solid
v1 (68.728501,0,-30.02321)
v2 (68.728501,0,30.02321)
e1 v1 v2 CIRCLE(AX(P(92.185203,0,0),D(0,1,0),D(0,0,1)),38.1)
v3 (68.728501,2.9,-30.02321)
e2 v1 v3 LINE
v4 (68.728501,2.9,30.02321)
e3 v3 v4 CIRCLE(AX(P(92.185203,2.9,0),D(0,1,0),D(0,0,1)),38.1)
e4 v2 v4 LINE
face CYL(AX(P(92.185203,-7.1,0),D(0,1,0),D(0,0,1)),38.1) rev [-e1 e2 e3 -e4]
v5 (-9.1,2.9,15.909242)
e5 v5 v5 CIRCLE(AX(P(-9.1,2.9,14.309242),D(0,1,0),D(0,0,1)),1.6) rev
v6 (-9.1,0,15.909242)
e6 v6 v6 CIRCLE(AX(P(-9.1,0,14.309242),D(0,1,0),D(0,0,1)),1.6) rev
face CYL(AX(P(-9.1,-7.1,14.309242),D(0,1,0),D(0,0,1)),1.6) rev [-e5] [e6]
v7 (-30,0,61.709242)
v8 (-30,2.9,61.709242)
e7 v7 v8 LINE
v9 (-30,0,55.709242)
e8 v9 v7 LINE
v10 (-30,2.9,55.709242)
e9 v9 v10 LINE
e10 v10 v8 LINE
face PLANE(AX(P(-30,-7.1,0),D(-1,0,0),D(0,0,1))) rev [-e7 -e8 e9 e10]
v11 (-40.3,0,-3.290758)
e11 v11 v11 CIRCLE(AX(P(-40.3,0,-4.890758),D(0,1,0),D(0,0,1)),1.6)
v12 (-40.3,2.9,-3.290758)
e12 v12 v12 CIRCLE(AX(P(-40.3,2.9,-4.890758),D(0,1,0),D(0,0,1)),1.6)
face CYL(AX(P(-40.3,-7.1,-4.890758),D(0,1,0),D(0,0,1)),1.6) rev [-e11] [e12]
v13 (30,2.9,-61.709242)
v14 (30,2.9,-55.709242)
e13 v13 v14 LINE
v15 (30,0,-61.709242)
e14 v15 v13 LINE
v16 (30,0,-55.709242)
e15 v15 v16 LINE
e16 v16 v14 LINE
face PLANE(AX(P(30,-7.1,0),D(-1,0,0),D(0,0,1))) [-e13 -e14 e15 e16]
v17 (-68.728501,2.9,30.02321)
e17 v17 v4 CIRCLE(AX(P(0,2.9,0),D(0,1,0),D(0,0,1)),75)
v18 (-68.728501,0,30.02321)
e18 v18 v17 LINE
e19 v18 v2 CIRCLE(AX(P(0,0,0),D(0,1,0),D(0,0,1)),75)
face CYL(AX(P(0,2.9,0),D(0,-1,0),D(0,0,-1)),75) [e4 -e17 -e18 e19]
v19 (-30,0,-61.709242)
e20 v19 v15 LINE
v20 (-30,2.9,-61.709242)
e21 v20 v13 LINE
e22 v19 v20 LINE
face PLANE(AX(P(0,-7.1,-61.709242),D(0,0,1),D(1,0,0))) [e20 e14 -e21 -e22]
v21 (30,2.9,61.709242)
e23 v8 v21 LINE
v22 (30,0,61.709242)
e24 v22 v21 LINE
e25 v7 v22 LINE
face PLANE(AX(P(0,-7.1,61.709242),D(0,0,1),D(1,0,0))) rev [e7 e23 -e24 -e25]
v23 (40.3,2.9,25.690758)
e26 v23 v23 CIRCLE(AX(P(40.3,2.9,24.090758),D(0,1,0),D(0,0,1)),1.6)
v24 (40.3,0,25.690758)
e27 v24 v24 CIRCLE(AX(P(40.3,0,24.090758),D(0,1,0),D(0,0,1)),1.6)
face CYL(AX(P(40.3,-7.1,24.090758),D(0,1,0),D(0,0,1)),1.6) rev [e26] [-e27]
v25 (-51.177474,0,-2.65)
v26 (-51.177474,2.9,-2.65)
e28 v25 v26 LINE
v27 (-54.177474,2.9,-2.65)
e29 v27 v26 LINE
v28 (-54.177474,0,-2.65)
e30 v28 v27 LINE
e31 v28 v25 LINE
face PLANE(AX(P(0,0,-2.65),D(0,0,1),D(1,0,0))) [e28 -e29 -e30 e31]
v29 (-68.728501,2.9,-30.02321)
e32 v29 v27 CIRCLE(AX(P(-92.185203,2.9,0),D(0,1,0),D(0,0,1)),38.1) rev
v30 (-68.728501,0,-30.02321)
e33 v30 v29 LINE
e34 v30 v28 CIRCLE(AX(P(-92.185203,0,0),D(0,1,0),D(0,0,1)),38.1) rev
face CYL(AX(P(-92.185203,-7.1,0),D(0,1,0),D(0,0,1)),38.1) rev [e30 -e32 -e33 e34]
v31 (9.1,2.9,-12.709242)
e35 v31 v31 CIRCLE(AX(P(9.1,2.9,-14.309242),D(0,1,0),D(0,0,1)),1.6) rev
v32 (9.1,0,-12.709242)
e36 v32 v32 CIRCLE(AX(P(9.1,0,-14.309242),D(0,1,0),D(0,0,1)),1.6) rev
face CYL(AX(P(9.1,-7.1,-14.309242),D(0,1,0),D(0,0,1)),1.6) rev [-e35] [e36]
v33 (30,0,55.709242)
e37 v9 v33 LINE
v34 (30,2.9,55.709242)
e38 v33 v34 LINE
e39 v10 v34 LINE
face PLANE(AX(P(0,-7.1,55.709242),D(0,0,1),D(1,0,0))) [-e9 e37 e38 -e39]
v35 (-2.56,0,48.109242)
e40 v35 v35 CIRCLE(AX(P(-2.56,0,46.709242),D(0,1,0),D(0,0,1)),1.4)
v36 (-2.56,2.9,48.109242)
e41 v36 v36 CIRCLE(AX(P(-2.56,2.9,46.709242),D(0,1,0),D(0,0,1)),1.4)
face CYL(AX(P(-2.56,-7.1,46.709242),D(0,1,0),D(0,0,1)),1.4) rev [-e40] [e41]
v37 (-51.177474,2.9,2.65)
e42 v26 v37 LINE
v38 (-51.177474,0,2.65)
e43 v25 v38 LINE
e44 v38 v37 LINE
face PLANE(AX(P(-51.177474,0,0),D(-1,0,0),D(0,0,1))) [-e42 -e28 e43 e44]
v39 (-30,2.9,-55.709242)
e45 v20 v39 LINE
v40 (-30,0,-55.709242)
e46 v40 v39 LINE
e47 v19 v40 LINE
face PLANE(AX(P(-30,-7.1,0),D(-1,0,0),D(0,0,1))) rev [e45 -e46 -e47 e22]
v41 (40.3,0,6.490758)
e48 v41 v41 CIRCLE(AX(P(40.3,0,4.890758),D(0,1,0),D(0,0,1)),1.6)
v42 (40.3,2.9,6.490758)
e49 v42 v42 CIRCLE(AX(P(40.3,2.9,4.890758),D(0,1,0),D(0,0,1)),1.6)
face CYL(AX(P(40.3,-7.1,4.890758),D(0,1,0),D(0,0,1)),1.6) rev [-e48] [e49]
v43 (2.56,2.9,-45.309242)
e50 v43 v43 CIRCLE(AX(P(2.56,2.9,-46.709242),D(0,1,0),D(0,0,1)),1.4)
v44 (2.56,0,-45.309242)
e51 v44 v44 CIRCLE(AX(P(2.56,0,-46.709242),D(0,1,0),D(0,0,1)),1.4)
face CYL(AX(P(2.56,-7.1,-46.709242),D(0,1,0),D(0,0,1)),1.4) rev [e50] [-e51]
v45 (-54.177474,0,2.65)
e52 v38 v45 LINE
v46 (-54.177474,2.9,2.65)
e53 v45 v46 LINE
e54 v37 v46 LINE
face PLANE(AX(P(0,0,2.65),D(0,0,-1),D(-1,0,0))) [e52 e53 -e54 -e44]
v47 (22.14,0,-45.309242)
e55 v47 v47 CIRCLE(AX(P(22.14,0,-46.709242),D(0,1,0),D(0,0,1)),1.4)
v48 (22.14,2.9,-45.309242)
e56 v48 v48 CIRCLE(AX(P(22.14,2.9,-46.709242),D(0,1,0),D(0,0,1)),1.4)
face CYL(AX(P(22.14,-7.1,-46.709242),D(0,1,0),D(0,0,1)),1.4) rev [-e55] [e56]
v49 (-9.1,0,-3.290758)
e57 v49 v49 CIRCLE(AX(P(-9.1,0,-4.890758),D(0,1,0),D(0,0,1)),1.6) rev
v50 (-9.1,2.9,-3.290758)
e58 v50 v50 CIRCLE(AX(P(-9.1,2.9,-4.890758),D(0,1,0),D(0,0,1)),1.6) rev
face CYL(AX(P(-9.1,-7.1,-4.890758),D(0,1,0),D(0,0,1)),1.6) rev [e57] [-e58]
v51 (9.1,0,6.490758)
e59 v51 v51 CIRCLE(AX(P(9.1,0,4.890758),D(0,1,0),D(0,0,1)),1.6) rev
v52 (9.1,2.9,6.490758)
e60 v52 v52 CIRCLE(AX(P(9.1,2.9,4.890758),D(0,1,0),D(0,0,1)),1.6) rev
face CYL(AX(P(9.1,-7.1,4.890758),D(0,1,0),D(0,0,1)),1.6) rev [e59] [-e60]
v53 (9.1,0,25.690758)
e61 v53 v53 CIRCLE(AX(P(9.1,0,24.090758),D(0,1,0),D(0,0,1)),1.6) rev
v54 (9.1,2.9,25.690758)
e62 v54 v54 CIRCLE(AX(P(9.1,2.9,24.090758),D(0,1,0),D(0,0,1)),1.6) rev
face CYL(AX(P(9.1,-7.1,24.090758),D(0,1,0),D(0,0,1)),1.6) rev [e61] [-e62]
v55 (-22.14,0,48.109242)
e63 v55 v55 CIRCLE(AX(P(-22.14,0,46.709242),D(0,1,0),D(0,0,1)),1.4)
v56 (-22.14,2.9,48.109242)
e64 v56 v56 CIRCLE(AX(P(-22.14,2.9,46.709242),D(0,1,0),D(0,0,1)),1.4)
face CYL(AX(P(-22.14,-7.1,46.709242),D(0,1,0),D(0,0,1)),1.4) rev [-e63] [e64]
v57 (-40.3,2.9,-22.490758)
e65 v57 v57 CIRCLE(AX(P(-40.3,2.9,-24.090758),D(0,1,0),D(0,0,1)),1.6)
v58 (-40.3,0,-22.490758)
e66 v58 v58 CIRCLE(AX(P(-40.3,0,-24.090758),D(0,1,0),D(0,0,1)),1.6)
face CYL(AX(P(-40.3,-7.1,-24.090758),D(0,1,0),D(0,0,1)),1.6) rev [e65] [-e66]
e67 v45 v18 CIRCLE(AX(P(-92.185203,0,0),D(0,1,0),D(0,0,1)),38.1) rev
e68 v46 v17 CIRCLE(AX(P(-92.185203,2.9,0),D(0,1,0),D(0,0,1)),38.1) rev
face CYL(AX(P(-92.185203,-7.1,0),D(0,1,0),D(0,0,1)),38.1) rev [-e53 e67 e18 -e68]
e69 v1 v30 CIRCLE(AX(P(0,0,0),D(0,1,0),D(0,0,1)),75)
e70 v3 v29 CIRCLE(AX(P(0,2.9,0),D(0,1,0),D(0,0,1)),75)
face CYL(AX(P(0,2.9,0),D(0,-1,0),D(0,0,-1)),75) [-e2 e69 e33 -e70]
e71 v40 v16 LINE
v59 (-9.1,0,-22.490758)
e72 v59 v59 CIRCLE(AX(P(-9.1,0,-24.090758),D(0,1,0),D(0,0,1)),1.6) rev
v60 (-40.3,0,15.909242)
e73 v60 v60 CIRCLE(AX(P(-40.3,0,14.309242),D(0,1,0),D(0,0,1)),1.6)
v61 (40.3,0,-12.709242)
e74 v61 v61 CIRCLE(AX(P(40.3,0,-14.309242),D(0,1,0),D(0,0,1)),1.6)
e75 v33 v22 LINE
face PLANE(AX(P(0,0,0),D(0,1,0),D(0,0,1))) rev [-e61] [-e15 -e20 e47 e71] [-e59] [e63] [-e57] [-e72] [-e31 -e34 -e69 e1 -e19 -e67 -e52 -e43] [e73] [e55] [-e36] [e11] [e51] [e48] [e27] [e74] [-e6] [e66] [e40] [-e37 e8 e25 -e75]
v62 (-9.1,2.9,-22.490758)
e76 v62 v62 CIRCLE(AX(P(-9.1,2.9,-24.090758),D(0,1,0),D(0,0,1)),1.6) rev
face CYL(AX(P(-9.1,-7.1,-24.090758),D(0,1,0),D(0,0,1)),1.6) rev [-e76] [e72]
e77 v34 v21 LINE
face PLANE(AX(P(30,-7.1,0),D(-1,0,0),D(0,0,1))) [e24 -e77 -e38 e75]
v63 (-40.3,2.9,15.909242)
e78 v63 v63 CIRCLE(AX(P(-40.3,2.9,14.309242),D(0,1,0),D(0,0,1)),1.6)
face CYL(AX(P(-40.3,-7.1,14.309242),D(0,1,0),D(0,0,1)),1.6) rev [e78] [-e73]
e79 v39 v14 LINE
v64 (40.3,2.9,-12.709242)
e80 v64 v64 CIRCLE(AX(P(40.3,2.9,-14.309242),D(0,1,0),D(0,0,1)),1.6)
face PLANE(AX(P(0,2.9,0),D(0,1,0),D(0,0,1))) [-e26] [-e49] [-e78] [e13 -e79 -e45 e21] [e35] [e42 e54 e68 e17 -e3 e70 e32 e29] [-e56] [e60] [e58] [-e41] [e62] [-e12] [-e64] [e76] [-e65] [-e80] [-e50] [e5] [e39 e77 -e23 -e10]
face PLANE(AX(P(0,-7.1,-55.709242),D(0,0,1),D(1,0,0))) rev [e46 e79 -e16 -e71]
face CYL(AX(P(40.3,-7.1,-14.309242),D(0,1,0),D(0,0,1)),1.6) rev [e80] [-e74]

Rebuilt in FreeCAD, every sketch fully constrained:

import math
import FreeCAD as App
import Part
import Sketcher


def add_polygon(sketch, points):
    """Adds a closed chain of lines whose ends are joined by coincident constraints."""
    first, n = sketch.GeometryCount, len(points)
    for a, b in zip(points, points[1:] + points[:1]):
        sketch.addGeometry(Part.LineSegment(App.Vector(*a, 0), App.Vector(*b, 0)), False)
    for i in range(n):
        sketch.addConstraint(Sketcher.Constraint("Coincident", first + i, 2, first + (i + 1) % n, 1))

doc = App.newDocument("Part")
body = doc.addObject("PartDesign::Body", "Body")

# Sketch on XZ plane
sketch1 = body.newObject("Sketcher::SketchObject", "Sketch")
sketch1.AttachmentSupport = (doc.getObject("XZ_Plane"), [""])
sketch1.MapMode = "FlatFace"
sketch1.addGeometry(Part.Circle(App.Vector(0, 0, 0), App.Vector(0, 0, 1), 75), False)
sketch1.addConstraint([
    Sketcher.Constraint("Coincident", 0, 3, -1, 1),
    Sketcher.Constraint("Diameter", 0, 150.0),
])
pad1 = body.newObject("PartDesign::Pad", "Pad")
pad1.Profile = sketch1
pad1.Length = 2.9
pad1.Reversed = True

# Sketch on XZ plane
sketch2 = body.newObject("Sketcher::SketchObject", "Sketch001")
sketch2.AttachmentSupport = (doc.getObject("XZ_Plane"), [""])
sketch2.MapMode = "FlatFace"
sketch2.AttachmentOffset = App.Placement(App.Vector(0, 0, -2.9), App.Rotation())
sketch2.addGeometry(Part.ArcOfCircle(Part.Circle(App.Vector(-92.2, 0, 0), App.Vector(0, 0, 1), 38.1), math.radians(-52), math.radians(52)), False)  # 0
sketch2.addGeometry(Part.ArcOfCircle(Part.Circle(App.Vector(0, 0, 0), App.Vector(0, 0, 1), 75), math.radians(156), math.radians(204)), False)  # 1
sketch2.addGeometry(Part.ArcOfCircle(Part.Circle(App.Vector(0, 0, 0), App.Vector(0, 0, 1), 75), math.radians(-24), math.radians(0)), False)  # 2
sketch2.addGeometry(Part.ArcOfCircle(Part.Circle(App.Vector(92.2, 0, 0), App.Vector(0, 0, 1), 38.1), math.radians(128), math.radians(232)), False)  # 3
sketch2.addGeometry(Part.ArcOfCircle(Part.Circle(App.Vector(0, 0, 0), App.Vector(0, 0, 1), 75), math.radians(0), math.radians(24)), False)  # 4
sketch2.addGeometry(Part.Circle(App.Vector(9.1, 24.1, 0), App.Vector(0, 0, 1), 1.6), False)  # 5
sketch2.addGeometry(Part.Circle(App.Vector(40.3, 24.1, 0), App.Vector(0, 0, 1), 1.6), False)  # 6
sketch2.addGeometry(Part.Circle(App.Vector(40.3, 4.9, 0), App.Vector(0, 0, 1), 1.6), False)  # 7
sketch2.addGeometry(Part.Circle(App.Vector(40.3, -14.3, 0), App.Vector(0, 0, 1), 1.6), False)  # 8
sketch2.addGeometry(Part.Circle(App.Vector(9.1, -14.3, 0), App.Vector(0, 0, 1), 1.6), False)  # 9
sketch2.addGeometry(Part.Circle(App.Vector(9.1, 4.9, 0), App.Vector(0, 0, 1), 1.6), False)  # 10
sketch2.addGeometry(Part.Circle(App.Vector(-9.1, -4.9, 0), App.Vector(0, 0, 1), 1.6), False)  # 11
sketch2.addGeometry(Part.Circle(App.Vector(-9.1, 14.3, 0), App.Vector(0, 0, 1), 1.6), False)  # 12
sketch2.addGeometry(Part.Circle(App.Vector(-9.1, -24.1, 0), App.Vector(0, 0, 1), 1.6), False)  # 13
sketch2.addGeometry(Part.Circle(App.Vector(-40.3, -24.1, 0), App.Vector(0, 0, 1), 1.6), False)  # 14
sketch2.addGeometry(Part.Circle(App.Vector(-40.3, -4.9, 0), App.Vector(0, 0, 1), 1.6), False)  # 15
sketch2.addGeometry(Part.Circle(App.Vector(-40.3, 14.3, 0), App.Vector(0, 0, 1), 1.6), False)  # 16
sketch2.addGeometry(Part.Circle(App.Vector(-22.1, 46.7, 0), App.Vector(0, 0, 1), 1.4), False)  # 17
sketch2.addGeometry(Part.Circle(App.Vector(-2.6, 46.7, 0), App.Vector(0, 0, 1), 1.4), False)  # 18
sketch2.addGeometry(Part.Circle(App.Vector(22.1, -46.7, 0), App.Vector(0, 0, 1), 1.4), False)  # 19
sketch2.addGeometry(Part.Circle(App.Vector(2.6, -46.7, 0), App.Vector(0, 0, 1), 1.4), False)  # 20
add_polygon(sketch2, [(-30, 55.7), (-30, 61.7), (30, 61.7), (30, 55.7)])  # lines 21-24
add_polygon(sketch2, [(-30, -61.7), (-30, -55.7), (30, -55.7), (30, -61.7)])  # lines 25-28
sketch2.addConstraint([
    Sketcher.Constraint("Coincident", 0, 1, 1, 2),
    Sketcher.Constraint("Coincident", 1, 1, 0, 2),
    Sketcher.Constraint("Coincident", 2, 1, 3, 2),
    Sketcher.Constraint("Coincident", 3, 1, 4, 2),
    Sketcher.Constraint("Tangent", 4, 1, 2, 2),
    Sketcher.Constraint("Vertical", 21),
    Sketcher.Constraint("Horizontal", 22),
    Sketcher.Constraint("Vertical", 23),
    Sketcher.Constraint("Horizontal", 24),
    Sketcher.Constraint("Vertical", 25),
    Sketcher.Constraint("Horizontal", 26),
    Sketcher.Constraint("Vertical", 27),
    Sketcher.Constraint("Horizontal", 28),
    Sketcher.Constraint("Coincident", 1, 3, -1, 1),
    Sketcher.Constraint("Coincident", 2, 3, -1, 1),
    Sketcher.Constraint("Equal", 1, 2),
    Sketcher.Constraint("Equal", 0, 3),
    Sketcher.Constraint("Equal", 2, 4),
    Sketcher.Constraint("Equal", 5, 6),
    Sketcher.Constraint("Equal", 6, 7),
    Sketcher.Constraint("Equal", 7, 8),
    Sketcher.Constraint("Equal", 8, 9),
    Sketcher.Constraint("Equal", 9, 10),
    Sketcher.Constraint("Equal", 10, 11),
    Sketcher.Constraint("Equal", 11, 12),
    Sketcher.Constraint("Equal", 12, 13),
    Sketcher.Constraint("Equal", 13, 14),
    Sketcher.Constraint("Equal", 14, 15),
    Sketcher.Constraint("Equal", 15, 16),
    Sketcher.Constraint("Equal", 17, 18),
    Sketcher.Constraint("Equal", 18, 19),
    Sketcher.Constraint("Equal", 19, 20),
    Sketcher.Constraint("Symmetric", 0, 3, 3, 3, -1, 1),
    Sketcher.Constraint("Symmetric", 10, 3, 11, 3, -1, 1),
    Sketcher.Constraint("Symmetric", 9, 3, 12, 3, -1, 1),
    Sketcher.Constraint("Symmetric", 5, 3, 13, 3, -1, 1),
    Sketcher.Constraint("Symmetric", 6, 3, 14, 3, -1, 1),
    Sketcher.Constraint("Symmetric", 7, 3, 15, 3, -1, 1),
    Sketcher.Constraint("Symmetric", 8, 3, 16, 3, -1, 1),
    Sketcher.Constraint("Symmetric", 17, 3, 19, 3, -1, 1),
    Sketcher.Constraint("Symmetric", 18, 3, 20, 3, -1, 1),
    Sketcher.Constraint("Symmetric", 23, 2, 25, 2, -1, 1),
    Sketcher.Constraint("Symmetric", 21, 2, 27, 2, -1, 1),
    Sketcher.Constraint("PointOnObject", 0, 3, -1),
    Sketcher.Constraint("PointOnObject", 4, 1, -1),
    Sketcher.Constraint("Horizontal", 5, 3, 6, 3),
    Sketcher.Constraint("Horizontal", 8, 3, 9, 3),
    Sketcher.Constraint("Horizontal", 7, 3, 10, 3),
    Sketcher.Constraint("Horizontal", 17, 3, 18, 3),
    Sketcher.Constraint("Vertical", 6, 3, 7, 3),
    Sketcher.Constraint("Vertical", 7, 3, 8, 3),
    Sketcher.Constraint("Vertical", 5, 3, 9, 3),
    Sketcher.Constraint("Vertical", 9, 3, 10, 3),
    Sketcher.Constraint("Vertical", 24, 2, 25, 2),
    Sketcher.Constraint("Radius", 1, 75.0),
    Sketcher.Constraint("Diameter", 5, 3.2),
    Sketcher.Constraint("Diameter", 17, 2.8),
    Sketcher.Constraint("Radius", 0, 38.1),
    Sketcher.Constraint("DistanceX", 22, 1, 22, 2, 60.0),
    Sketcher.Constraint("DistanceY", 21, 1, 21, 2, 6.0),
    Sketcher.Constraint("DistanceY", 17, 3, 21, 2, 15.0),
    Sketcher.Constraint("DistanceX", -1, 1, 5, 3, 9.1),
    Sketcher.Constraint("DistanceX", -1, 1, 6, 3, 40.3),
    Sketcher.Constraint("DistanceY", 7, 3, 6, 3, 19.2),
    Sketcher.Constraint("DistanceY", 8, 3, 7, 3, 19.2),
    Sketcher.Constraint("DistanceY", 12, 3, 17, 3, 32.4),
    Sketcher.Constraint("DistanceX", 17, 3, -1, 1, 22.14),
    Sketcher.Constraint("DistanceX", 18, 3, -1, 1, 2.56),
    Sketcher.Constraint("DistanceX", 0, 1, -1, 1, 68.728501),
    Sketcher.Constraint("DistanceY", 0, 1, 14, 3, 5.932452),
])
pocket1 = body.newObject("PartDesign::Pocket", "Pocket")
pocket1.Profile = sketch2
pocket1.Length = 10
pocket1.Reversed = True

# Sketch on XZ plane
sketch3 = body.newObject("Sketcher::SketchObject", "Sketch002")
sketch3.AttachmentSupport = (doc.getObject("XZ_Plane"), [""])
sketch3.MapMode = "FlatFace"
sketch3.AttachmentOffset = App.Placement(App.Vector(0, 0, -2.9), App.Rotation())
sketch3.addGeometry([
    Part.LineSegment(App.Vector(-51.2, -2.6, 0), App.Vector(-54.2, -2.6, 0)),
    Part.ArcOfCircle(Part.Circle(App.Vector(-92.2, 0, 0), App.Vector(0, 0, 1), 38.1), math.radians(-3.99), math.radians(3.99)),
    Part.LineSegment(App.Vector(-54.2, 2.6, 0), App.Vector(-51.2, 2.6, 0)),
    Part.LineSegment(App.Vector(-51.2, 2.6, 0), App.Vector(-51.2, -2.6, 0)),
], False)
sketch3.addConstraint([
    Sketcher.Constraint("Coincident", 0, 2, 1, 1),
    Sketcher.Constraint("Coincident", 1, 2, 2, 1),
    Sketcher.Constraint("Coincident", 2, 2, 3, 1),
    Sketcher.Constraint("Coincident", 3, 2, 0, 1),
    Sketcher.Constraint("Horizontal", 0),
    Sketcher.Constraint("Horizontal", 2),
    Sketcher.Constraint("Vertical", 3),
    Sketcher.Constraint("Symmetric", 0, 2, 1, 2, -1),
    Sketcher.Constraint("Radius", 1, 38.1),
    Sketcher.Constraint("DistanceX", 0, 2, 0, 1, 3.0),
    Sketcher.Constraint("DistanceY", 3, 2, 3, 1, 5.3),
    Sketcher.Constraint("DistanceX", 1, 3, -1, 1, 92.185203),
])
pocket2 = body.newObject("PartDesign::Pocket", "Pocket001")
pocket2.Profile = sketch3
pocket2.Type = "ThroughAll"
pocket2.Reversed = True

doc.recompute()
